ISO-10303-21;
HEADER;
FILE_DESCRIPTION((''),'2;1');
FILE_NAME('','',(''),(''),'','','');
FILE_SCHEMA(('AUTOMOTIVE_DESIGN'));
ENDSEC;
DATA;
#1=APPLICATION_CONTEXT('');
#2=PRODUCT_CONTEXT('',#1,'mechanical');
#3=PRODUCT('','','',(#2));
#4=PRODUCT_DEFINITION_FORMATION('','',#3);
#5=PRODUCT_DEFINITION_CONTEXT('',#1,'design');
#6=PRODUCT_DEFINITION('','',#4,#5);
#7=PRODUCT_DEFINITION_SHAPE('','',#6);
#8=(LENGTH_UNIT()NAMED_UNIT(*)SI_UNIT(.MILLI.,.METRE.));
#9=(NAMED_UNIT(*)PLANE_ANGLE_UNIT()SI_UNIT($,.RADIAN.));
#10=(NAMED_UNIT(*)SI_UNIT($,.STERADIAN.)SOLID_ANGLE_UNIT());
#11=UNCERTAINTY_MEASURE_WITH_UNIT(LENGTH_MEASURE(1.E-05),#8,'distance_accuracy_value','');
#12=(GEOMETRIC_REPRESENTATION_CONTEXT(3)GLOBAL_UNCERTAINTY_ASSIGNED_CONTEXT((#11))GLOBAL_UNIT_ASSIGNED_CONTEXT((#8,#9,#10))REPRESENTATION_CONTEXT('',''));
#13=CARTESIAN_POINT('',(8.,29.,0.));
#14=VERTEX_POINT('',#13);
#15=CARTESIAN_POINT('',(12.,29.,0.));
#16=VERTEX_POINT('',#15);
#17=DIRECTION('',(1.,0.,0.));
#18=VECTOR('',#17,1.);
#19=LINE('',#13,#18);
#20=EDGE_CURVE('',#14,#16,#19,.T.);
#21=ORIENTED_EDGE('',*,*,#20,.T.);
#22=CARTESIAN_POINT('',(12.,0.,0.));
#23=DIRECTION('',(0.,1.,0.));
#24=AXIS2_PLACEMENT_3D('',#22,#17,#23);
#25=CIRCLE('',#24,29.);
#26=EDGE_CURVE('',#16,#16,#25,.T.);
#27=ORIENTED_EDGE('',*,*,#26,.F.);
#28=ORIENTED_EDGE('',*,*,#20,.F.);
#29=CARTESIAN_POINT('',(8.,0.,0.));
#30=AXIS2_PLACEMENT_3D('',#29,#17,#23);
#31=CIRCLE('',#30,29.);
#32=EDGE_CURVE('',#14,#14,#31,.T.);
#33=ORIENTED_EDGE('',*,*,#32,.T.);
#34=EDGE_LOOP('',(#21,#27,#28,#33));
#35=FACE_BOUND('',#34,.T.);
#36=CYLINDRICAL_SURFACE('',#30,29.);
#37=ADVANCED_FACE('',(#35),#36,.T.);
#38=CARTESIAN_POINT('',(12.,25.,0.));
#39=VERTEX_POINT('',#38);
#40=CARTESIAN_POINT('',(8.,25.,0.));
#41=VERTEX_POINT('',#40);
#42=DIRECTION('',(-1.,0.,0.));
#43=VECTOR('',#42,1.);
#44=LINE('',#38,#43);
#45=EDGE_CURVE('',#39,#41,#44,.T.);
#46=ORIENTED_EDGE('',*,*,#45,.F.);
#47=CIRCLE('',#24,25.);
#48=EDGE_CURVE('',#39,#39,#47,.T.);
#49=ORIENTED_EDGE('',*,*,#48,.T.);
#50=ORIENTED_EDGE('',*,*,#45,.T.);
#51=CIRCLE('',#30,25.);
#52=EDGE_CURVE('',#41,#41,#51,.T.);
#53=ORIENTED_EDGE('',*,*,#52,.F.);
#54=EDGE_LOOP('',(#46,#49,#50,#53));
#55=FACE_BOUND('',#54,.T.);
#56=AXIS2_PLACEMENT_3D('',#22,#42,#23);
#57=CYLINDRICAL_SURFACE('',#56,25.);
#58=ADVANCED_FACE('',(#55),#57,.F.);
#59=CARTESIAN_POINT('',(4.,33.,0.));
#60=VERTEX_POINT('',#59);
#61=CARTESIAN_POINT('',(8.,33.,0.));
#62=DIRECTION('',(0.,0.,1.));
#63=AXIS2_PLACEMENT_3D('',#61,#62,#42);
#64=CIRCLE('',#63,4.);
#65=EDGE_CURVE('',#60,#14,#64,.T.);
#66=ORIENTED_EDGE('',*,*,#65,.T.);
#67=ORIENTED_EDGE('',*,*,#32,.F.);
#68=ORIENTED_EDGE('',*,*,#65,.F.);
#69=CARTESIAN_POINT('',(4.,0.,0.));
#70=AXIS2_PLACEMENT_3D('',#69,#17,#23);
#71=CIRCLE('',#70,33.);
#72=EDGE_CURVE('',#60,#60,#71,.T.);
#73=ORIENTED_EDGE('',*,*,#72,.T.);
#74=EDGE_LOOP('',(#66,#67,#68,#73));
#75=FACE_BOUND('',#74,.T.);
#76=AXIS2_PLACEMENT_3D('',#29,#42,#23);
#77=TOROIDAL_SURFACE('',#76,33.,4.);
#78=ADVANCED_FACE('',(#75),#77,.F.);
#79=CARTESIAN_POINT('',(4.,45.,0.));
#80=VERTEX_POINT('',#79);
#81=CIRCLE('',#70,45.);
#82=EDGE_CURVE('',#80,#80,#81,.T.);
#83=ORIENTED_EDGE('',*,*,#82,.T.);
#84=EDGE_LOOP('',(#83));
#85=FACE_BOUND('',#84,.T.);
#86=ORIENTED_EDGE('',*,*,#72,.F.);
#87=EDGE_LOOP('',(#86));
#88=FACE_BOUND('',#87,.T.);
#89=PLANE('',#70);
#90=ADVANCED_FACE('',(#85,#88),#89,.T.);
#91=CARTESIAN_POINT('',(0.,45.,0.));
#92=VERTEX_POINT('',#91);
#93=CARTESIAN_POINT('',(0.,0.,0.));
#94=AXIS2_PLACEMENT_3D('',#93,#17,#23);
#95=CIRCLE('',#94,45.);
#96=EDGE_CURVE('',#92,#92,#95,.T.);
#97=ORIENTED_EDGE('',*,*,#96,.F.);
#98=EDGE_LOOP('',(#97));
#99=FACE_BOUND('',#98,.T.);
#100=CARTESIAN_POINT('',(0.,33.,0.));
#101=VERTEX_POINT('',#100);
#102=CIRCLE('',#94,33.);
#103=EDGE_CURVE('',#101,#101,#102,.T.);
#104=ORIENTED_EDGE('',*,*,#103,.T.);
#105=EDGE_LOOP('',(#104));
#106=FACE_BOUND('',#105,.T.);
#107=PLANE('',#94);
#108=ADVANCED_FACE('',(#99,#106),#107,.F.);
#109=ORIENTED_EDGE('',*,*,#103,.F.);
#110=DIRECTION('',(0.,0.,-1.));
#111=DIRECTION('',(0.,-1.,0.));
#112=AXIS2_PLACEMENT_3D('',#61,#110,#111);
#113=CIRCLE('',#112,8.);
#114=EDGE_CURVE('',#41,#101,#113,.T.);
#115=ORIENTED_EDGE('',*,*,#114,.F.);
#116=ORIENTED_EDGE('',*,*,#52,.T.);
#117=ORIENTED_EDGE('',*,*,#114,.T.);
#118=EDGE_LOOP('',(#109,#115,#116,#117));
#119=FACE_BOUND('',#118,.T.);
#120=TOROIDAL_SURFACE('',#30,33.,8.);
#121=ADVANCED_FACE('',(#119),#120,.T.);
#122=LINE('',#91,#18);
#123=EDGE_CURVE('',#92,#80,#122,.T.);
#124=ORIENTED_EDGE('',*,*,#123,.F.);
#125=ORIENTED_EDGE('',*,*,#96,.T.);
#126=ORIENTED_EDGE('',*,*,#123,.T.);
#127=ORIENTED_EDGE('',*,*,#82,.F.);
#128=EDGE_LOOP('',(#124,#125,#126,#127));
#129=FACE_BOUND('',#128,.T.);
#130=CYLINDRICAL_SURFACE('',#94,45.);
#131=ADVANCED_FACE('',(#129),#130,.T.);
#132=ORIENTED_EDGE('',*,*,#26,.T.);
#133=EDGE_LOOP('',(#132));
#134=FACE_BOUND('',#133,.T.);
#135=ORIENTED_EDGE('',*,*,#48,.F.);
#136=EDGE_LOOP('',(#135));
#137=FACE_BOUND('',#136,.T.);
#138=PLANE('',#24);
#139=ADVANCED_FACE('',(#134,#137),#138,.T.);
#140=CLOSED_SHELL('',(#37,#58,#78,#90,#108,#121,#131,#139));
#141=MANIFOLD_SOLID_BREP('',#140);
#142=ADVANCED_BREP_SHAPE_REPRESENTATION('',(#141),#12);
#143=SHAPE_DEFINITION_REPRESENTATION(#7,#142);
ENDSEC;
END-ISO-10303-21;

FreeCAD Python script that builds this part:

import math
import FreeCAD as App
import Part
import Sketcher
from FreeCAD import Vector

doc = App.newDocument("Part")
body = doc.addObject("PartDesign::Body", "Body")

# Sketch on XY plane
sketch1 = doc.addObject("Sketcher::SketchObject", "Sketch")
body.addObject(sketch1)
sketch1.AttachmentSupport = (doc.XY_Plane, [""])
sketch1.MapMode = "FlatFace"
sketch1.addGeometry([
    Part.LineSegment(Vector(4, 45, 0), Vector(0, 45, 0)),  # 0
    Part.LineSegment(Vector(0, 45, 0), Vector(0, 33, 0)),  # 1
    Part.ArcOfCircle(Part.Circle(Vector(8, 33, 0), Vector(0, 0, 1), 8), math.radians(-180), math.radians(-90)),  # 2
    Part.LineSegment(Vector(8, 25, 0), Vector(12, 25, 0)),  # 3
    Part.LineSegment(Vector(12, 25, 0), Vector(12, 29, 0)),  # 4
    Part.LineSegment(Vector(12, 29, 0), Vector(8, 29, 0)),  # 5
    Part.ArcOfCircle(Part.Circle(Vector(8, 33, 0), Vector(0, 0, 1), 4), math.radians(180), math.radians(270)),  # 6
    Part.LineSegment(Vector(4, 33, 0), Vector(4, 45, 0)),  # 7
], False)
sketch1.addConstraint([
    Sketcher.Constraint("Coincident", 0, 2, 1, 1),
    Sketcher.Constraint("Tangent", 1, 2, 2, 1),
    Sketcher.Constraint("Tangent", 2, 2, 3, 1),
    Sketcher.Constraint("Coincident", 3, 2, 4, 1),
    Sketcher.Constraint("Coincident", 4, 2, 5, 1),
    Sketcher.Constraint("Tangent", 5, 2, 6, 2),
    Sketcher.Constraint("Tangent", 6, 1, 7, 1),
    Sketcher.Constraint("Coincident", 7, 2, 0, 1),
    Sketcher.Constraint("Horizontal", 0),
    Sketcher.Constraint("Vertical", 1),
    Sketcher.Constraint("Horizontal", 3),
    Sketcher.Constraint("Vertical", 4),
    Sketcher.Constraint("Horizontal", 5),
    Sketcher.Constraint("Vertical", 7),
    Sketcher.Constraint("Coincident", 6, 3, 2, 3),
    Sketcher.Constraint("PointOnObject", 0, 2, -2),
    Sketcher.Constraint("Equal", 0, 3),
    Sketcher.Constraint("Radius", 2, 8.0),
    Sketcher.Constraint("Radius", 6, 4.0),
    Sketcher.Constraint("DistanceY", 1, 2, 1, 1, 12.0),
    Sketcher.Constraint("DistanceY", -1, 1, 2, 3, 33.0),
])
revolution = doc.addObject("PartDesign::Revolution", "Revolution")
body.addObject(revolution)
revolution.Profile = sketch1
revolution.ReferenceAxis = (sketch1, ["H_Axis"])
revolution.Angle = 360

doc.recompute()
